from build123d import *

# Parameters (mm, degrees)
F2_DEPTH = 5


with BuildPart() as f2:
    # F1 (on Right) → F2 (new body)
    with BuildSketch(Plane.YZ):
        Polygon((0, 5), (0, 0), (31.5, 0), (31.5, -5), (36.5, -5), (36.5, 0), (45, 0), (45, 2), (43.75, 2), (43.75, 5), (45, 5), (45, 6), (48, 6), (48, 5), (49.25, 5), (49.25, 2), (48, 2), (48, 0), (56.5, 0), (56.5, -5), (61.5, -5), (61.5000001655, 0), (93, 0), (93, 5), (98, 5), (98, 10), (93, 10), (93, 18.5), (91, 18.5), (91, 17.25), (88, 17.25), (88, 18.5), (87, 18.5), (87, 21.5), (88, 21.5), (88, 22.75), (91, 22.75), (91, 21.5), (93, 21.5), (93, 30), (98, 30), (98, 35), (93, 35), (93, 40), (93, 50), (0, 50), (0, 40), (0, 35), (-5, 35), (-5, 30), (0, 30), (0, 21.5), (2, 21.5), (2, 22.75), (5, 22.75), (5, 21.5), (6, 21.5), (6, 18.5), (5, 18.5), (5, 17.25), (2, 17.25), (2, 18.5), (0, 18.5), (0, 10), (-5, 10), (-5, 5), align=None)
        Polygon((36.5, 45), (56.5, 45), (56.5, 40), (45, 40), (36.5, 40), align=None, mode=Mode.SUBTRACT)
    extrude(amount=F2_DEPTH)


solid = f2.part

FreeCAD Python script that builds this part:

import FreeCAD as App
import Part
import Sketcher
from FreeCAD import Vector
Q = App.Units.Quantity

doc = App.newDocument("Part")
params = doc.addObject("Spreadsheet::Sheet", "Params")
for row, (alias, value) in enumerate([
    ("sketch1_width", "5 mm"),
    ("sketch1_width2", "3 mm"),
    ("sketch1_width3", "1 mm"),
    ("sketch1_width4", "93 mm"),
    ("sketch1_width5", "20 mm"),
    ("pad1_length", "5 mm"),
], start=1):
    params.set(f"A{row}", alias)
    params.set(f"B{row}", "=" + value)
    params.setAlias(f"B{row}", alias)

body = doc.addObject("PartDesign::Body", "Body")

sketch1 = doc.addObject("Sketcher::SketchObject", "Sketch")
body.addObject(sketch1)
sketch1.AttachmentSupport = (doc.YZ_Plane, [""])
sketch1.MapMode = "FlatFace"
sketch1.addGeometry([
    Part.LineSegment(Vector(0, 5, 0), Vector(0, 0, 0)),
    Part.LineSegment(Vector(0, 0, 0), Vector(31.5, 0, 0)),
    Part.LineSegment(Vector(31.5, 0, 0), Vector(31.5, -5, 0)),
    Part.LineSegment(Vector(31.5, -5, 0), Vector(36.5, -5, 0)),
    Part.LineSegment(Vector(36.5, -5, 0), Vector(36.5, 0, 0)),
    Part.LineSegment(Vector(36.5, 0, 0), Vector(45, 0, 0)),
    Part.LineSegment(Vector(45, 0, 0), Vector(45, 2, 0)),
    Part.LineSegment(Vector(45, 2, 0), Vector(43.8, 2, 0)),
    Part.LineSegment(Vector(43.8, 2, 0), Vector(43.8, 5, 0)),
    Part.LineSegment(Vector(43.8, 5, 0), Vector(45, 5, 0)),
    Part.LineSegment(Vector(45, 5, 0), Vector(45, 6, 0)),
    Part.LineSegment(Vector(45, 6, 0), Vector(48, 6, 0)),
    Part.LineSegment(Vector(48, 6, 0), Vector(48, 5, 0)),
    Part.LineSegment(Vector(48, 5, 0), Vector(49.2, 5, 0)),
    Part.LineSegment(Vector(49.2, 5, 0), Vector(49.2, 2, 0)),
    Part.LineSegment(Vector(49.2, 2, 0), Vector(48, 2, 0)),
    Part.LineSegment(Vector(48, 2, 0), Vector(48, 0, 0)),
    Part.LineSegment(Vector(48, 0, 0), Vector(56.5, 0, 0)),
    Part.LineSegment(Vector(56.5, 0, 0), Vector(56.5, -5, 0)),
    Part.LineSegment(Vector(56.5, -5, 0), Vector(61.5, -5, 0)),
    Part.LineSegment(Vector(61.5, -5, 0), Vector(61.5, 0, 0)),
    Part.LineSegment(Vector(61.5, 0, 0), Vector(93, 0, 0)),
    Part.LineSegment(Vector(93, 0, 0), Vector(93, 5, 0)),
    Part.LineSegment(Vector(93, 5, 0), Vector(98, 5, 0)),
    Part.LineSegment(Vector(98, 5, 0), Vector(98, 10, 0)),
    Part.LineSegment(Vector(98, 10, 0), Vector(93, 10, 0)),
    Part.LineSegment(Vector(93, 10, 0), Vector(93, 18.5, 0)),
    Part.LineSegment(Vector(93, 18.5, 0), Vector(91, 18.5, 0)),
    Part.LineSegment(Vector(91, 18.5, 0), Vector(91, 17.2, 0)),
    Part.LineSegment(Vector(91, 17.2, 0), Vector(88, 17.2, 0)),
    Part.LineSegment(Vector(88, 17.2, 0), Vector(88, 18.5, 0)),
    Part.LineSegment(Vector(88, 18.5, 0), Vector(87, 18.5, 0)),
    Part.LineSegment(Vector(87, 18.5, 0), Vector(87, 21.5, 0)),
    Part.LineSegment(Vector(87, 21.5, 0), Vector(88, 21.5, 0)),
    Part.LineSegment(Vector(88, 21.5, 0), Vector(88, 22.8, 0)),
    Part.LineSegment(Vector(88, 22.8, 0), Vector(91, 22.8, 0)),
    Part.LineSegment(Vector(91, 22.8, 0), Vector(91, 21.5, 0)),
    Part.LineSegment(Vector(91, 21.5, 0), Vector(93, 21.5, 0)),
    Part.LineSegment(Vector(93, 21.5, 0), Vector(93, 30, 0)),
    Part.LineSegment(Vector(93, 30, 0), Vector(98, 30, 0)),
    Part.LineSegment(Vector(98, 30, 0), Vector(98, 35, 0)),
    Part.LineSegment(Vector(98, 35, 0), Vector(93, 35, 0)),
    Part.LineSegment(Vector(93, 35, 0), Vector(93, 50, 0)),
    Part.LineSegment(Vector(93, 50, 0), Vector(0, 50, 0)),
    Part.LineSegment(Vector(0, 50, 0), Vector(0, 35, 0)),
    Part.LineSegment(Vector(0, 35, 0), Vector(-5, 35, 0)),
    Part.LineSegment(Vector(-5, 35, 0), Vector(-5, 30, 0)),
    Part.LineSegment(Vector(-5, 30, 0), Vector(0, 30, 0)),
    Part.LineSegment(Vector(0, 30, 0), Vector(0, 21.5, 0)),
    Part.LineSegment(Vector(0, 21.5, 0), Vector(2, 21.5, 0)),
    Part.LineSegment(Vector(2, 21.5, 0), Vector(2, 22.8, 0)),
    Part.LineSegment(Vector(2, 22.8, 0), Vector(5, 22.8, 0)),
    Part.LineSegment(Vector(5, 22.8, 0), Vector(5, 21.5, 0)),
    Part.LineSegment(Vector(5, 21.5, 0), Vector(6, 21.5, 0)),
    Part.LineSegment(Vector(6, 21.5, 0), Vector(6, 18.5, 0)),
    Part.LineSegment(Vector(6, 18.5, 0), Vector(5, 18.5, 0)),
    Part.LineSegment(Vector(5, 18.5, 0), Vector(5, 17.2, 0)),
    Part.LineSegment(Vector(5, 17.2, 0), Vector(2, 17.2, 0)),
    Part.LineSegment(Vector(2, 17.2, 0), Vector(2, 18.5, 0)),
    Part.LineSegment(Vector(2, 18.5, 0), Vector(0, 18.5, 0)),
    Part.LineSegment(Vector(0, 18.5, 0), Vector(0, 10, 0)),
    Part.LineSegment(Vector(0, 10, 0), Vector(-5, 10, 0)),
    Part.LineSegment(Vector(-5, 10, 0), Vector(-5, 5, 0)),
    Part.LineSegment(Vector(-5, 5, 0), Vector(0, 5, 0)),
    Part.LineSegment(Vector(36.5, 40, 0), Vector(36.5, 45, 0)),
    Part.LineSegment(Vector(36.5, 45, 0), Vector(56.5, 45, 0)),
    Part.LineSegment(Vector(56.5, 45, 0), Vector(56.5, 40, 0)),
    Part.LineSegment(Vector(56.5, 40, 0), Vector(36.5, 40, 0)),
], False)
sketch1.addConstraint([
    Sketcher.Constraint("Coincident", 0, 2, 1, 1),
    Sketcher.Constraint("Coincident", 1, 2, 2, 1),
    Sketcher.Constraint("Coincident", 2, 2, 3, 1),
    Sketcher.Constraint("Coincident", 3, 2, 4, 1),
    Sketcher.Constraint("Coincident", 4, 2, 5, 1),
    Sketcher.Constraint("Coincident", 5, 2, 6, 1),
    Sketcher.Constraint("Coincident", 6, 2, 7, 1),
    Sketcher.Constraint("Coincident", 7, 2, 8, 1),
    Sketcher.Constraint("Coincident", 8, 2, 9, 1),
    Sketcher.Constraint("Coincident", 9, 2, 10, 1),
    Sketcher.Constraint("Coincident", 10, 2, 11, 1),
    Sketcher.Constraint("Coincident", 11, 2, 12, 1),
    Sketcher.Constraint("Coincident", 12, 2, 13, 1),
    Sketcher.Constraint("Coincident", 13, 2, 14, 1),
    Sketcher.Constraint("Coincident", 14, 2, 15, 1),
    Sketcher.Constraint("Coincident", 15, 2, 16, 1),
    Sketcher.Constraint("Coincident", 16, 2, 17, 1),
    Sketcher.Constraint("Coincident", 17, 2, 18, 1),
    Sketcher.Constraint("Coincident", 18, 2, 19, 1),
    Sketcher.Constraint("Coincident", 19, 2, 20, 1),
    Sketcher.Constraint("Coincident", 20, 2, 21, 1),
    Sketcher.Constraint("Coincident", 21, 2, 22, 1),
    Sketcher.Constraint("Coincident", 22, 2, 23, 1),
    Sketcher.Constraint("Coincident", 23, 2, 24, 1),
    Sketcher.Constraint("Coincident", 24, 2, 25, 1),
    Sketcher.Constraint("Coincident", 25, 2, 26, 1),
    Sketcher.Constraint("Coincident", 26, 2, 27, 1),
    Sketcher.Constraint("Coincident", 27, 2, 28, 1),
    Sketcher.Constraint("Coincident", 28, 2, 29, 1),
    Sketcher.Constraint("Coincident", 29, 2, 30, 1),
    Sketcher.Constraint("Coincident", 30, 2, 31, 1),
    Sketcher.Constraint("Coincident", 31, 2, 32, 1),
    Sketcher.Constraint("Coincident", 32, 2, 33, 1),
    Sketcher.Constraint("Coincident", 33, 2, 34, 1),
    Sketcher.Constraint("Coincident", 34, 2, 35, 1),
    Sketcher.Constraint("Coincident", 35, 2, 36, 1),
    Sketcher.Constraint("Coincident", 36, 2, 37, 1),
    Sketcher.Constraint("Coincident", 37, 2, 38, 1),
    Sketcher.Constraint("Coincident", 38, 2, 39, 1),
    Sketcher.Constraint("Coincident", 39, 2, 40, 1),
    Sketcher.Constraint("Coincident", 40, 2, 41, 1),
    Sketcher.Constraint("Coincident", 41, 2, 42, 1),
    Sketcher.Constraint("Coincident", 42, 2, 43, 1),
    Sketcher.Constraint("Coincident", 43, 2, 44, 1),
    Sketcher.Constraint("Coincident", 44, 2, 45, 1),
    Sketcher.Constraint("Coincident", 45, 2, 46, 1),
    Sketcher.Constraint("Coincident", 46, 2, 47, 1),
    Sketcher.Constraint("Coincident", 47, 2, 48, 1),
    Sketcher.Constraint("Coincident", 48, 2, 49, 1),
    Sketcher.Constraint("Coincident", 49, 2, 50, 1),
    Sketcher.Constraint("Coincident", 50, 2, 51, 1),
    Sketcher.Constraint("Coincident", 51, 2, 52, 1),
    Sketcher.Constraint("Coincident", 52, 2, 53, 1),
    Sketcher.Constraint("Coincident", 53, 2, 54, 1),
    Sketcher.Constraint("Coincident", 54, 2, 55, 1),
    Sketcher.Constraint("Coincident", 55, 2, 56, 1),
    Sketcher.Constraint("Coincident", 56, 2, 57, 1),
    Sketcher.Constraint("Coincident", 57, 2, 58, 1),
    Sketcher.Constraint("Coincident", 58, 2, 59, 1),
    Sketcher.Constraint("Coincident", 59, 2, 60, 1),
    Sketcher.Constraint("Coincident", 60, 2, 61, 1),
    Sketcher.Constraint("Coincident", 61, 2, 62, 1),
    Sketcher.Constraint("Coincident", 62, 2, 63, 1),
    Sketcher.Constraint("Coincident", 63, 2, 0, 1),
    Sketcher.Constraint("Coincident", 64, 2, 65, 1),
    Sketcher.Constraint("Coincident", 65, 2, 66, 1),
    Sketcher.Constraint("Coincident", 66, 2, 67, 1),
    Sketcher.Constraint("Coincident", 67, 2, 64, 1),
    Sketcher.Constraint("Vertical", 0),
    Sketcher.Constraint("Horizontal", 1),
    Sketcher.Constraint("Vertical", 2),
    Sketcher.Constraint("Horizontal", 3),
    Sketcher.Constraint("Vertical", 4),
    Sketcher.Constraint("Horizontal", 5),
    Sketcher.Constraint("Vertical", 6),
    Sketcher.Constraint("Horizontal", 7),
    Sketcher.Constraint("Vertical", 8),
    Sketcher.Constraint("Horizontal", 9),
    Sketcher.Constraint("Vertical", 10),
    Sketcher.Constraint("Horizontal", 11),
    Sketcher.Constraint("Vertical", 12),
    Sketcher.Constraint("Horizontal", 13),
    Sketcher.Constraint("Vertical", 14),
    Sketcher.Constraint("Horizontal", 15),
    Sketcher.Constraint("Vertical", 16),
    Sketcher.Constraint("Horizontal", 17),
    Sketcher.Constraint("Vertical", 18),
    Sketcher.Constraint("Horizontal", 19),
    Sketcher.Constraint("Vertical", 20),
    Sketcher.Constraint("Horizontal", 21),
    Sketcher.Constraint("Vertical", 22),
    Sketcher.Constraint("Horizontal", 23),
    Sketcher.Constraint("Vertical", 24),
    Sketcher.Constraint("Horizontal", 25),
    Sketcher.Constraint("Vertical", 26),
    Sketcher.Constraint("Horizontal", 27),
    Sketcher.Constraint("Vertical", 28),
    Sketcher.Constraint("Horizontal", 29),
    Sketcher.Constraint("Vertical", 30),
    Sketcher.Constraint("Horizontal", 31),
    Sketcher.Constraint("Vertical", 32),
    Sketcher.Constraint("Horizontal", 33),
    Sketcher.Constraint("Vertical", 34),
    Sketcher.Constraint("Horizontal", 35),
    Sketcher.Constraint("Vertical", 36),
    Sketcher.Constraint("Horizontal", 37),
    Sketcher.Constraint("Vertical", 38),
    Sketcher.Constraint("Horizontal", 39),
    Sketcher.Constraint("Vertical", 40),
    Sketcher.Constraint("Horizontal", 41),
    Sketcher.Constraint("Vertical", 42),
    Sketcher.Constraint("Horizontal", 43),
    Sketcher.Constraint("Vertical", 44),
    Sketcher.Constraint("Horizontal", 45),
    Sketcher.Constraint("Vertical", 46),
    Sketcher.Constraint("Horizontal", 47),
    Sketcher.Constraint("Vertical", 48),
    Sketcher.Constraint("Horizontal", 49),
    Sketcher.Constraint("Vertical", 50),
    Sketcher.Constraint("Horizontal", 51),
    Sketcher.Constraint("Vertical", 52),
    Sketcher.Constraint("Horizontal", 53),
    Sketcher.Constraint("Vertical", 54),
    Sketcher.Constraint("Horizontal", 55),
    Sketcher.Constraint("Vertical", 56),
    Sketcher.Constraint("Horizontal", 57),
    Sketcher.Constraint("Vertical", 58),
    Sketcher.Constraint("Horizontal", 59),
    Sketcher.Constraint("Vertical", 60),
    Sketcher.Constraint("Horizontal", 61),
    Sketcher.Constraint("Vertical", 62),
    Sketcher.Constraint("Horizontal", 63),
    Sketcher.Constraint("Vertical", 64),
    Sketcher.Constraint("Horizontal", 65),
    Sketcher.Constraint("Vertical", 66),
    Sketcher.Constraint("Horizontal", 67),
    Sketcher.Constraint("Coincident", 0, 2, -1, 1),
    Sketcher.Constraint("PointOnObject", 4, 2, -1),
    Sketcher.Constraint("PointOnObject", 16, 2, -1),
    Sketcher.Constraint("PointOnObject", 20, 2, -1),
    Sketcher.Constraint("PointOnObject", 43, 2, -2),
    Sketcher.Constraint("PointOnObject", 47, 2, -2),
    Sketcher.Constraint("PointOnObject", 59, 2, -2),
    Sketcher.Constraint("Horizontal", 9, 2, 12, 2),
    Sketcher.Constraint("Horizontal", 7, 2, 14, 2),
    Sketcher.Constraint("Horizontal", 3, 2, 18, 2),
    Sketcher.Constraint("Horizontal", 13, 2, 22, 2),
    Sketcher.Constraint("Horizontal", 27, 2, 30, 2),
    Sketcher.Constraint("Horizontal", 33, 2, 36, 2),
    Sketcher.Constraint("Horizontal", 41, 2, 44, 2),
    Sketcher.Constraint("Horizontal", 39, 2, 46, 2),
    Sketcher.Constraint("Horizontal", 37, 2, 48, 2),
    Sketcher.Constraint("Horizontal", 35, 2, 50, 2),
    Sketcher.Constraint("Horizontal", 49, 2, 52, 2),
    Sketcher.Constraint("Horizontal", 31, 2, 54, 2),
    Sketcher.Constraint("Horizontal", 29, 2, 56, 2),
    Sketcher.Constraint("Horizontal", 55, 2, 58, 2),
    Sketcher.Constraint("Horizontal", 25, 2, 60, 2),
    Sketcher.Constraint("Horizontal", 23, 2, 62, 2),
    Sketcher.Constraint("Vertical", 6, 2, 9, 2),
    Sketcher.Constraint("Vertical", 12, 2, 15, 2),
    Sketcher.Constraint("Vertical", 22, 2, 25, 2),
    Sketcher.Constraint("Vertical", 30, 2, 33, 2),
    Sketcher.Constraint("Vertical", 28, 2, 35, 2),
    Sketcher.Constraint("Vertical", 26, 2, 37, 2),
    Sketcher.Constraint("Vertical", 24, 2, 39, 2),
    Sketcher.Constraint("Vertical", 38, 2, 41, 2),
    Sketcher.Constraint("Vertical", 52, 2, 55, 2),
    Sketcher.Constraint("Vertical", 50, 2, 57, 2),
    Sketcher.Constraint("Vertical", 46, 2, 61, 2),
    Sketcher.Constraint("Vertical", 4, 2, 64, 2),
    Sketcher.Constraint("Vertical", 18, 2, 65, 2),
    Sketcher.Constraint("Equal", 9, 13),
    Sketcher.Constraint("Equal", 5, 17),
    Sketcher.Constraint("Equal", 3, 19),
    Sketcher.Constraint("Equal", 1, 21),
    Sketcher.Constraint("Equal", 19, 23),
    Sketcher.Constraint("Equal", 11, 29),
    Sketcher.Constraint("Equal", 41, 45),
    Sketcher.Constraint("Equal", 37, 49),
    Sketcher.Constraint("Equal", 35, 51),
    Sketcher.Constraint("Equal", 33, 53),
    Sketcher.Constraint("Equal", 63, 0),
    Sketcher.Constraint("Equal", 0, 2),
    Sketcher.Constraint("Equal", 59, 6),
    Sketcher.Constraint("Equal", 57, 8),
    Sketcher.Constraint("Equal", 55, 10),
    Sketcher.Constraint("Equal", 22, 24),
    Sketcher.Constraint("Equal", 17, 26),
    Sketcher.Constraint("Equal", 15, 28),
    Sketcher.Constraint("Equal", 14, 32),
    Sketcher.Constraint("Equal", 30, 34),
    Sketcher.Constraint("Equal", 26, 38),
    Sketcher.Constraint("Equal", 24, 40),
    Sketcher.Constraint("Equal", 62, 64),
    Sketcher.Constraint("DistanceX", 3, 1, 3, 2, Q("5 mm")),
    Sketcher.Constraint("DistanceX", 11, 1, 11, 2, Q("3 mm")),
    Sketcher.Constraint("DistanceX", 31, 2, 31, 1, Q("1 mm")),
    Sketcher.Constraint("DistanceX", 43, 2, 43, 1, Q("93 mm")),
    Sketcher.Constraint("DistanceX", 65, 1, 65, 2, Q("20 mm")),
    Sketcher.Constraint("DistanceY", 42, 1, 42, 2, Q("15 mm")),
    Sketcher.Constraint("DistanceY", -1, 1, 64, 2, Q("45 mm")),
    Sketcher.Constraint("DistanceX", 7, 2, 7, 1, Q("1.25 mm")),
])
sketch1.setExpression("Constraints[195]", "Params.sketch1_width")
sketch1.setExpression("Constraints[196]", "Params.sketch1_width2")
sketch1.setExpression("Constraints[197]", "Params.sketch1_width3")
sketch1.setExpression("Constraints[198]", "Params.sketch1_width4")
sketch1.setExpression("Constraints[199]", "Params.sketch1_width5")
pad1 = doc.addObject("PartDesign::Pad", "Pad")
body.addObject(pad1)
pad1.Profile = sketch1
pad1.setExpression("Length", "Params.pad1_length")

doc.recompute()
